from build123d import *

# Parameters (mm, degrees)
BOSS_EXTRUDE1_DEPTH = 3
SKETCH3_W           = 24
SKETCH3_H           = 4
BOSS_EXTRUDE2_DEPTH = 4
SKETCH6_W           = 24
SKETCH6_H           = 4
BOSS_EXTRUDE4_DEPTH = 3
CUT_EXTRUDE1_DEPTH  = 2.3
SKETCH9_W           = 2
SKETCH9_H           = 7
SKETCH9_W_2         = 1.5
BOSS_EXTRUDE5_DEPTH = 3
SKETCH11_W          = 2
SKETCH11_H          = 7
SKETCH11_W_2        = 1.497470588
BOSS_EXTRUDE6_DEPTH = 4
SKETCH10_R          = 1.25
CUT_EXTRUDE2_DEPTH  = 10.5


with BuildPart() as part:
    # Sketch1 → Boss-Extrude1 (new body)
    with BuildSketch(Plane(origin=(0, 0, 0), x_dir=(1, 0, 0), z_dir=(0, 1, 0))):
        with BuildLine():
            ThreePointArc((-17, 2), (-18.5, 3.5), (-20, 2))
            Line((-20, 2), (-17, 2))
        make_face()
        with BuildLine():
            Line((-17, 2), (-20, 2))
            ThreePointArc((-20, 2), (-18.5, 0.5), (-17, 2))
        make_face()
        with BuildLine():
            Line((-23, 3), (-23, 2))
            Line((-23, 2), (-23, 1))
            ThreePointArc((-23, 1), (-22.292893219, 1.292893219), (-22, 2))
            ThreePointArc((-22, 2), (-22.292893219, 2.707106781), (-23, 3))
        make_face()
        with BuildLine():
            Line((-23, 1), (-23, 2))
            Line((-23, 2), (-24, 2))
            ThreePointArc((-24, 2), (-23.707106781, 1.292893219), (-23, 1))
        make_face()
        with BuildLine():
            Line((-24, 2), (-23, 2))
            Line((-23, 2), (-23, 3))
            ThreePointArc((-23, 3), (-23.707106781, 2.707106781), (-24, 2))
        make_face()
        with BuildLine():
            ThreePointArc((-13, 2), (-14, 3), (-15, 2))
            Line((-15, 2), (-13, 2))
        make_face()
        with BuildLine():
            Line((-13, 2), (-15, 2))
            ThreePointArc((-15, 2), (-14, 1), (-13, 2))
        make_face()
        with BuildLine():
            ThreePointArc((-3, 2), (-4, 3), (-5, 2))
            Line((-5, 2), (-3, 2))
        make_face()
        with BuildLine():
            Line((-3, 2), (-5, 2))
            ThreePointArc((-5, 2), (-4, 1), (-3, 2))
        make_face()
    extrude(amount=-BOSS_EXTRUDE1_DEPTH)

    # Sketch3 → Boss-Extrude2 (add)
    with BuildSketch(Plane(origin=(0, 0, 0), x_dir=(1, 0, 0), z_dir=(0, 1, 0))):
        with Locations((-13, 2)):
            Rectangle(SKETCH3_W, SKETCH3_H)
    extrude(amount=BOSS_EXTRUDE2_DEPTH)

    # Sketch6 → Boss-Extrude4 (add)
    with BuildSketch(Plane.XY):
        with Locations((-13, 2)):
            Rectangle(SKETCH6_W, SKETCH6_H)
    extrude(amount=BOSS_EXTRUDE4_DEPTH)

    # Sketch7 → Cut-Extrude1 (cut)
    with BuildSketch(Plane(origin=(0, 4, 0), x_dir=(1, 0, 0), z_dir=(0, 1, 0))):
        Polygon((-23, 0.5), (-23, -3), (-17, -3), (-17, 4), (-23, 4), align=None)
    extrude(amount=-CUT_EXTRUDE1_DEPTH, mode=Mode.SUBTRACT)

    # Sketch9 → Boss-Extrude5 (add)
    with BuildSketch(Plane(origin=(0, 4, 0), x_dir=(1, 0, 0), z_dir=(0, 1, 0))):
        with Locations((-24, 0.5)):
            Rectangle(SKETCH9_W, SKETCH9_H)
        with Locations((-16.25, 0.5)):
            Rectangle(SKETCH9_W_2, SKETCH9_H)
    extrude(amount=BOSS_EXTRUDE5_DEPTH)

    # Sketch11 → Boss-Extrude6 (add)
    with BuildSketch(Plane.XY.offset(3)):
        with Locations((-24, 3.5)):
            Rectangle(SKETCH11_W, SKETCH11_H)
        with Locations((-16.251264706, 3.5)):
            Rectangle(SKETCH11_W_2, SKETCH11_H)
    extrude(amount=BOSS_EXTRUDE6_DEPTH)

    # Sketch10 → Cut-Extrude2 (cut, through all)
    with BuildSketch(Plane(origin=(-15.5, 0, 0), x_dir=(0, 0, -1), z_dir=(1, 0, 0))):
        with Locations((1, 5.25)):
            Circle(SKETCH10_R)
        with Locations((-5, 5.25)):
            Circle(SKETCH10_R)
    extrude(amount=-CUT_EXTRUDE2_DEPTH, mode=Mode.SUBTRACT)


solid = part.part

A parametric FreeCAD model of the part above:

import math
import FreeCAD as App
import Part
import Sketcher


def add_polygon(sketch, points):
    """Adds a closed chain of lines whose ends are joined by coincident constraints."""
    first, n = sketch.GeometryCount, len(points)
    for a, b in zip(points, points[1:] + points[:1]):
        sketch.addGeometry(Part.LineSegment(App.Vector(*a, 0), App.Vector(*b, 0)), False)
    for i in range(n):
        sketch.addConstraint(Sketcher.Constraint("Coincident", first + i, 2, first + (i + 1) % n, 1))

doc = App.newDocument("Part")
body = doc.addObject("PartDesign::Body", "Body")
body.AllowCompound = True

sketch1 = doc.addObject("Sketcher::SketchObject", "Sketch")
body.addObject(sketch1)
sketch1.AttachmentSupport = (doc.XZ_Plane, [""])
sketch1.MapMode = "FlatFace"
sketch1.addGeometry([
    Part.Circle(App.Vector(-18.5, -2, 0), App.Vector(0, 0, 1), 1.5),
    Part.ArcOfCircle(Part.Circle(App.Vector(-23, -2, 0), App.Vector(0, 0, 1), 1), math.radians(-90), math.radians(0)),
    Part.ArcOfCircle(Part.Circle(App.Vector(-23, -2, 0), App.Vector(0, 0, 1), 1), math.radians(-180), math.radians(-90)),
    Part.ArcOfCircle(Part.Circle(App.Vector(-23, -2, 0), App.Vector(0, 0, 1), 1), math.radians(90), math.radians(180)),
    Part.ArcOfCircle(Part.Circle(App.Vector(-23, -2, 0), App.Vector(0, 0, 1), 1), math.radians(0), math.radians(90)),
    Part.Circle(App.Vector(-14, -2, 0), App.Vector(0, 0, 1), 1),
    Part.Circle(App.Vector(-4, -2, 0), App.Vector(0, 0, 1), 1),
], False)
sketch1.addConstraint([
    Sketcher.Constraint("Tangent", 1, 1, 2, 2),
    Sketcher.Constraint("Tangent", 2, 1, 3, 2),
    Sketcher.Constraint("Tangent", 3, 1, 4, 2),
    Sketcher.Constraint("Tangent", 4, 1, 1, 2),
    Sketcher.Constraint("Equal", 1, 2),
    Sketcher.Constraint("Equal", 4, 5),
    Sketcher.Constraint("Equal", 5, 6),
    Sketcher.Constraint("Horizontal", 0, 3, 1, 3),
    Sketcher.Constraint("Horizontal", 4, 3, 5, 3),
    Sketcher.Constraint("Horizontal", 5, 3, 6, 3),
    Sketcher.Constraint("Horizontal", 6, 3, 2, 1),
    Sketcher.Constraint("Horizontal", 2, 1, 4, 1),
    Sketcher.Constraint("Vertical", 4, 3, 1, 1),
    Sketcher.Constraint("Vertical", 1, 1, 3, 1),
    Sketcher.Constraint("Diameter", 0, 3.0),
    Sketcher.Constraint("Diameter", 5, 2.0),
    Sketcher.Constraint("DistanceY", 0, 3, -1, 1, 2.0),
    Sketcher.Constraint("DistanceX", 1, 3, -1, 1, 23.0),
    Sketcher.Constraint("DistanceX", 5, 3, -1, 1, 14.0),
    Sketcher.Constraint("DistanceX", 6, 3, -1, 1, 4.0),
    Sketcher.Constraint("DistanceX", 0, 3, -1, 1, 18.5),
])
pad1 = doc.addObject("PartDesign::Pad", "Pad")
body.addObject(pad1)
pad1.Profile = sketch1
pad1.Length = 3

sketch2 = doc.addObject("Sketcher::SketchObject", "Sketch001")
body.addObject(sketch2)
sketch2.AttachmentSupport = (doc.XZ_Plane, [""])
sketch2.MapMode = "FlatFace"
add_polygon(sketch2, [(-25, -4), (-25, 0), (-1, 0), (-1, -4)])
sketch2.addConstraint([
    Sketcher.Constraint("Vertical", 0),
    Sketcher.Constraint("Horizontal", 1),
    Sketcher.Constraint("Vertical", 2),
    Sketcher.Constraint("Horizontal", 3),
    Sketcher.Constraint("PointOnObject", 0, 2, -1),
    Sketcher.Constraint("DistanceX", 1, 1, 1, 2, 24.0),
    Sketcher.Constraint("DistanceY", 0, 1, 0, 2, 4.0),
    Sketcher.Constraint("DistanceX", 0, 2, -1, 1, 25.0),
])
pad2 = doc.addObject("PartDesign::Pad", "Pad001")
body.addObject(pad2)
pad2.Profile = sketch2
pad2.Length = 4
pad2.Reversed = True

sketch3 = doc.addObject("Sketcher::SketchObject", "Sketch002")
body.addObject(sketch3)
sketch3.AttachmentSupport = (doc.XY_Plane, [""])
sketch3.MapMode = "FlatFace"
add_polygon(sketch3, [(-25, 4), (-25, 0), (-1, 0), (-1, 4)])
sketch3.addConstraint([
    Sketcher.Constraint("Vertical", 0),
    Sketcher.Constraint("Horizontal", 1),
    Sketcher.Constraint("Vertical", 2),
    Sketcher.Constraint("Horizontal", 3),
    Sketcher.Constraint("PointOnObject", 0, 2, -1),
    Sketcher.Constraint("DistanceX", 1, 1, 1, 2, 24.0),
    Sketcher.Constraint("DistanceY", 0, 2, 0, 1, 4.0),
    Sketcher.Constraint("DistanceX", 0, 2, -1, 1, 25.0),
])
pad3 = doc.addObject("PartDesign::Pad", "Pad002")
body.addObject(pad3)
pad3.Profile = sketch3
pad3.Length = 3

sketch4 = doc.addObject("Sketcher::SketchObject", "Sketch003")
body.addObject(sketch4)
sketch4.AttachmentSupport = (doc.XZ_Plane, [""])
sketch4.MapMode = "FlatFace"
sketch4.AttachmentOffset = App.Placement(App.Vector(0, 0, -4), App.Rotation())
add_polygon(sketch4, [(-23, 3), (-17, 3), (-17, -4), (-23, -4)])
sketch4.addConstraint([
    Sketcher.Constraint("Horizontal", 0),
    Sketcher.Constraint("Vertical", 1),
    Sketcher.Constraint("Horizontal", 2),
    Sketcher.Constraint("Vertical", 3),
    Sketcher.Constraint("DistanceX", 0, 1, 0, 2, 6.0),
    Sketcher.Constraint("DistanceY", 1, 2, 1, 1, 7.0),
    Sketcher.Constraint("DistanceX", 0, 2, -1, 1, 17.0),
    Sketcher.Constraint("DistanceY", -1, 1, 0, 2, 3.0),
])
pocket1 = doc.addObject("PartDesign::Pocket", "Pocket")
body.addObject(pocket1)
pocket1.Profile = sketch4
pocket1.Length = 2.3
pocket1.Reversed = True

sketch5 = doc.addObject("Sketcher::SketchObject", "Sketch004")
body.addObject(sketch5)
sketch5.AttachmentSupport = (doc.XZ_Plane, [""])
sketch5.MapMode = "FlatFace"
sketch5.AttachmentOffset = App.Placement(App.Vector(0, 0, -4), App.Rotation())
add_polygon(sketch5, [(-25, -4), (-25, 3), (-23, 3), (-23, -4)])
add_polygon(sketch5, [(-17, -4), (-17, 3), (-15.5, 3), (-15.5, -4)])
sketch5.addConstraint([
    Sketcher.Constraint("Vertical", 0),
    Sketcher.Constraint("Horizontal", 1),
    Sketcher.Constraint("Vertical", 2),
    Sketcher.Constraint("Horizontal", 3),
    Sketcher.Constraint("Vertical", 4),
    Sketcher.Constraint("Horizontal", 5),
    Sketcher.Constraint("Vertical", 6),
    Sketcher.Constraint("Horizontal", 7),
    Sketcher.Constraint("Horizontal", 1, 2, 4, 2),
    Sketcher.Constraint("Horizontal", 3, 2, 6, 2),
    Sketcher.Constraint("DistanceX", 1, 1, 1, 2, 2.0),
    Sketcher.Constraint("DistanceY", 0, 1, 0, 2, 7.0),
    Sketcher.Constraint("DistanceX", 5, 1, 5, 2, 1.5),
    Sketcher.Constraint("DistanceX", 0, 2, -1, 1, 25.0),
    Sketcher.Constraint("DistanceY", -1, 1, 0, 2, 3.0),
    Sketcher.Constraint("DistanceX", 4, 2, -1, 1, 17.0),
])
pad4 = doc.addObject("PartDesign::Pad", "Pad003")
body.addObject(pad4)
pad4.Profile = sketch5
pad4.Length = 3
pad4.Reversed = True

sketch6 = doc.addObject("Sketcher::SketchObject", "Sketch005")
body.addObject(sketch6)
sketch6.AttachmentSupport = (doc.XY_Plane, [""])
sketch6.MapMode = "FlatFace"
sketch6.AttachmentOffset = App.Placement(App.Vector(0, 0, 3), App.Rotation())
add_polygon(sketch6, [(-25, 7), (-25, 0), (-23, 0), (-23, 7)])
add_polygon(sketch6, [(-17, 7), (-17, 0), (-15.5, 0), (-15.5, 7)])
sketch6.addConstraint([
    Sketcher.Constraint("Vertical", 0),
    Sketcher.Constraint("Horizontal", 1),
    Sketcher.Constraint("Vertical", 2),
    Sketcher.Constraint("Horizontal", 3),
    Sketcher.Constraint("Vertical", 4),
    Sketcher.Constraint("Horizontal", 5),
    Sketcher.Constraint("Vertical", 6),
    Sketcher.Constraint("Horizontal", 7),
    Sketcher.Constraint("PointOnObject", 0, 2, -1),
    Sketcher.Constraint("PointOnObject", 4, 2, -1),
    Sketcher.Constraint("Horizontal", 3, 2, 6, 2),
    Sketcher.Constraint("DistanceX", 1, 1, 1, 2, 2.0),
    Sketcher.Constraint("DistanceY", 0, 2, 0, 1, 7.0),
    Sketcher.Constraint("DistanceX", 0, 2, -1, 1, 25.0),
    Sketcher.Constraint("DistanceX", 4, 2, -1, 1, 17.0),
    Sketcher.Constraint("DistanceX", 5, 1, 5, 2, 1.497471),
])
pad5 = doc.addObject("PartDesign::Pad", "Pad004")
body.addObject(pad5)
pad5.Profile = sketch6
pad5.Length = 4

sketch7 = doc.addObject("Sketcher::SketchObject", "Sketch006")
body.addObject(sketch7)
sketch7.AttachmentSupport = (doc.YZ_Plane, [""])
sketch7.MapMode = "FlatFace"
sketch7.AttachmentOffset = App.Placement(App.Vector(0, 0, -15.5), App.Rotation())
sketch7.addGeometry([
    Part.Circle(App.Vector(5.2, -1, 0), App.Vector(0, 0, 1), 1.2),
    Part.Circle(App.Vector(5.2, 5, 0), App.Vector(0, 0, 1), 1.2),
], False)
sketch7.addConstraint([
    Sketcher.Constraint("Equal", 0, 1),
    Sketcher.Constraint("Vertical", 0, 3, 1, 3),
    Sketcher.Constraint("Diameter", 0, 2.5),
    Sketcher.Constraint("DistanceY", 0, 3, -1, 1, 1.0),
    Sketcher.Constraint("DistanceY", -1, 1, 1, 3, 5.0),
    Sketcher.Constraint("DistanceX", -1, 1, 0, 3, 5.25),
])
pocket2 = doc.addObject("PartDesign::Pocket", "Pocket001")
body.addObject(pocket2)
pocket2.Profile = sketch7
pocket2.Type = "ThroughAll"

doc.recompute()
